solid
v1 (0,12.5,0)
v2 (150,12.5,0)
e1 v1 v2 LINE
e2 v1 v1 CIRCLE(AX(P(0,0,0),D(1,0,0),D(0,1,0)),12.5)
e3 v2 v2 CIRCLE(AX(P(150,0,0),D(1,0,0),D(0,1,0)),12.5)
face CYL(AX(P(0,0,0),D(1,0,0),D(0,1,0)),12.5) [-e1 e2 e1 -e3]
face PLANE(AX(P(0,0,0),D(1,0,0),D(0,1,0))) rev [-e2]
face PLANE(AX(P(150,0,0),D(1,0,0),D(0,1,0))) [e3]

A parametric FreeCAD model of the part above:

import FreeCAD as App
import Part
import Sketcher
Q = App.Units.Quantity


def add_polygon(sketch, points):
    """Adds a closed chain of lines whose ends are joined by coincident constraints."""
    first, n = sketch.GeometryCount, len(points)
    for a, b in zip(points, points[1:] + points[:1]):
        sketch.addGeometry(Part.LineSegment(App.Vector(*a, 0), App.Vector(*b, 0)), False)
    for i in range(n):
        sketch.addConstraint(Sketcher.Constraint("Coincident", first + i, 2, first + (i + 1) % n, 1))

doc = App.newDocument("Part")
body = doc.addObject("PartDesign::Body", "Body")

# Sketch on XY plane
sketch1 = doc.addObject("Sketcher::SketchObject", "Sketch")
body.addObject(sketch1)
sketch1.AttachmentSupport = (doc.XY_Plane, [""])
sketch1.MapMode = "FlatFace"
add_polygon(sketch1, [(0, 12), (0, 0), (150, 0), (150, 12)])  # lines 0-3
sketch1.addConstraint(Sketcher.Constraint("Vertical", 0))
sketch1.addConstraint(Sketcher.Constraint("Horizontal", 1))
sketch1.addConstraint(Sketcher.Constraint("Vertical", 2))
sketch1.addConstraint(Sketcher.Constraint("Horizontal", 3))
sketch1.addConstraint(Sketcher.Constraint("Coincident", 0, 2, -1, 1))
sketch1.addConstraint(Sketcher.Constraint("DistanceX", 1, 1, 1, 2, Q("150 mm")))
sketch1.addConstraint(Sketcher.Constraint("DistanceY", 0, 2, 0, 1, Q("12.5 mm")))
revolution = doc.addObject("PartDesign::Revolution", "Revolution")
body.addObject(revolution)
revolution.Profile = sketch1
revolution.ReferenceAxis = (sketch1, ["H_Axis"])
revolution.Angle = 360

doc.recompute()
